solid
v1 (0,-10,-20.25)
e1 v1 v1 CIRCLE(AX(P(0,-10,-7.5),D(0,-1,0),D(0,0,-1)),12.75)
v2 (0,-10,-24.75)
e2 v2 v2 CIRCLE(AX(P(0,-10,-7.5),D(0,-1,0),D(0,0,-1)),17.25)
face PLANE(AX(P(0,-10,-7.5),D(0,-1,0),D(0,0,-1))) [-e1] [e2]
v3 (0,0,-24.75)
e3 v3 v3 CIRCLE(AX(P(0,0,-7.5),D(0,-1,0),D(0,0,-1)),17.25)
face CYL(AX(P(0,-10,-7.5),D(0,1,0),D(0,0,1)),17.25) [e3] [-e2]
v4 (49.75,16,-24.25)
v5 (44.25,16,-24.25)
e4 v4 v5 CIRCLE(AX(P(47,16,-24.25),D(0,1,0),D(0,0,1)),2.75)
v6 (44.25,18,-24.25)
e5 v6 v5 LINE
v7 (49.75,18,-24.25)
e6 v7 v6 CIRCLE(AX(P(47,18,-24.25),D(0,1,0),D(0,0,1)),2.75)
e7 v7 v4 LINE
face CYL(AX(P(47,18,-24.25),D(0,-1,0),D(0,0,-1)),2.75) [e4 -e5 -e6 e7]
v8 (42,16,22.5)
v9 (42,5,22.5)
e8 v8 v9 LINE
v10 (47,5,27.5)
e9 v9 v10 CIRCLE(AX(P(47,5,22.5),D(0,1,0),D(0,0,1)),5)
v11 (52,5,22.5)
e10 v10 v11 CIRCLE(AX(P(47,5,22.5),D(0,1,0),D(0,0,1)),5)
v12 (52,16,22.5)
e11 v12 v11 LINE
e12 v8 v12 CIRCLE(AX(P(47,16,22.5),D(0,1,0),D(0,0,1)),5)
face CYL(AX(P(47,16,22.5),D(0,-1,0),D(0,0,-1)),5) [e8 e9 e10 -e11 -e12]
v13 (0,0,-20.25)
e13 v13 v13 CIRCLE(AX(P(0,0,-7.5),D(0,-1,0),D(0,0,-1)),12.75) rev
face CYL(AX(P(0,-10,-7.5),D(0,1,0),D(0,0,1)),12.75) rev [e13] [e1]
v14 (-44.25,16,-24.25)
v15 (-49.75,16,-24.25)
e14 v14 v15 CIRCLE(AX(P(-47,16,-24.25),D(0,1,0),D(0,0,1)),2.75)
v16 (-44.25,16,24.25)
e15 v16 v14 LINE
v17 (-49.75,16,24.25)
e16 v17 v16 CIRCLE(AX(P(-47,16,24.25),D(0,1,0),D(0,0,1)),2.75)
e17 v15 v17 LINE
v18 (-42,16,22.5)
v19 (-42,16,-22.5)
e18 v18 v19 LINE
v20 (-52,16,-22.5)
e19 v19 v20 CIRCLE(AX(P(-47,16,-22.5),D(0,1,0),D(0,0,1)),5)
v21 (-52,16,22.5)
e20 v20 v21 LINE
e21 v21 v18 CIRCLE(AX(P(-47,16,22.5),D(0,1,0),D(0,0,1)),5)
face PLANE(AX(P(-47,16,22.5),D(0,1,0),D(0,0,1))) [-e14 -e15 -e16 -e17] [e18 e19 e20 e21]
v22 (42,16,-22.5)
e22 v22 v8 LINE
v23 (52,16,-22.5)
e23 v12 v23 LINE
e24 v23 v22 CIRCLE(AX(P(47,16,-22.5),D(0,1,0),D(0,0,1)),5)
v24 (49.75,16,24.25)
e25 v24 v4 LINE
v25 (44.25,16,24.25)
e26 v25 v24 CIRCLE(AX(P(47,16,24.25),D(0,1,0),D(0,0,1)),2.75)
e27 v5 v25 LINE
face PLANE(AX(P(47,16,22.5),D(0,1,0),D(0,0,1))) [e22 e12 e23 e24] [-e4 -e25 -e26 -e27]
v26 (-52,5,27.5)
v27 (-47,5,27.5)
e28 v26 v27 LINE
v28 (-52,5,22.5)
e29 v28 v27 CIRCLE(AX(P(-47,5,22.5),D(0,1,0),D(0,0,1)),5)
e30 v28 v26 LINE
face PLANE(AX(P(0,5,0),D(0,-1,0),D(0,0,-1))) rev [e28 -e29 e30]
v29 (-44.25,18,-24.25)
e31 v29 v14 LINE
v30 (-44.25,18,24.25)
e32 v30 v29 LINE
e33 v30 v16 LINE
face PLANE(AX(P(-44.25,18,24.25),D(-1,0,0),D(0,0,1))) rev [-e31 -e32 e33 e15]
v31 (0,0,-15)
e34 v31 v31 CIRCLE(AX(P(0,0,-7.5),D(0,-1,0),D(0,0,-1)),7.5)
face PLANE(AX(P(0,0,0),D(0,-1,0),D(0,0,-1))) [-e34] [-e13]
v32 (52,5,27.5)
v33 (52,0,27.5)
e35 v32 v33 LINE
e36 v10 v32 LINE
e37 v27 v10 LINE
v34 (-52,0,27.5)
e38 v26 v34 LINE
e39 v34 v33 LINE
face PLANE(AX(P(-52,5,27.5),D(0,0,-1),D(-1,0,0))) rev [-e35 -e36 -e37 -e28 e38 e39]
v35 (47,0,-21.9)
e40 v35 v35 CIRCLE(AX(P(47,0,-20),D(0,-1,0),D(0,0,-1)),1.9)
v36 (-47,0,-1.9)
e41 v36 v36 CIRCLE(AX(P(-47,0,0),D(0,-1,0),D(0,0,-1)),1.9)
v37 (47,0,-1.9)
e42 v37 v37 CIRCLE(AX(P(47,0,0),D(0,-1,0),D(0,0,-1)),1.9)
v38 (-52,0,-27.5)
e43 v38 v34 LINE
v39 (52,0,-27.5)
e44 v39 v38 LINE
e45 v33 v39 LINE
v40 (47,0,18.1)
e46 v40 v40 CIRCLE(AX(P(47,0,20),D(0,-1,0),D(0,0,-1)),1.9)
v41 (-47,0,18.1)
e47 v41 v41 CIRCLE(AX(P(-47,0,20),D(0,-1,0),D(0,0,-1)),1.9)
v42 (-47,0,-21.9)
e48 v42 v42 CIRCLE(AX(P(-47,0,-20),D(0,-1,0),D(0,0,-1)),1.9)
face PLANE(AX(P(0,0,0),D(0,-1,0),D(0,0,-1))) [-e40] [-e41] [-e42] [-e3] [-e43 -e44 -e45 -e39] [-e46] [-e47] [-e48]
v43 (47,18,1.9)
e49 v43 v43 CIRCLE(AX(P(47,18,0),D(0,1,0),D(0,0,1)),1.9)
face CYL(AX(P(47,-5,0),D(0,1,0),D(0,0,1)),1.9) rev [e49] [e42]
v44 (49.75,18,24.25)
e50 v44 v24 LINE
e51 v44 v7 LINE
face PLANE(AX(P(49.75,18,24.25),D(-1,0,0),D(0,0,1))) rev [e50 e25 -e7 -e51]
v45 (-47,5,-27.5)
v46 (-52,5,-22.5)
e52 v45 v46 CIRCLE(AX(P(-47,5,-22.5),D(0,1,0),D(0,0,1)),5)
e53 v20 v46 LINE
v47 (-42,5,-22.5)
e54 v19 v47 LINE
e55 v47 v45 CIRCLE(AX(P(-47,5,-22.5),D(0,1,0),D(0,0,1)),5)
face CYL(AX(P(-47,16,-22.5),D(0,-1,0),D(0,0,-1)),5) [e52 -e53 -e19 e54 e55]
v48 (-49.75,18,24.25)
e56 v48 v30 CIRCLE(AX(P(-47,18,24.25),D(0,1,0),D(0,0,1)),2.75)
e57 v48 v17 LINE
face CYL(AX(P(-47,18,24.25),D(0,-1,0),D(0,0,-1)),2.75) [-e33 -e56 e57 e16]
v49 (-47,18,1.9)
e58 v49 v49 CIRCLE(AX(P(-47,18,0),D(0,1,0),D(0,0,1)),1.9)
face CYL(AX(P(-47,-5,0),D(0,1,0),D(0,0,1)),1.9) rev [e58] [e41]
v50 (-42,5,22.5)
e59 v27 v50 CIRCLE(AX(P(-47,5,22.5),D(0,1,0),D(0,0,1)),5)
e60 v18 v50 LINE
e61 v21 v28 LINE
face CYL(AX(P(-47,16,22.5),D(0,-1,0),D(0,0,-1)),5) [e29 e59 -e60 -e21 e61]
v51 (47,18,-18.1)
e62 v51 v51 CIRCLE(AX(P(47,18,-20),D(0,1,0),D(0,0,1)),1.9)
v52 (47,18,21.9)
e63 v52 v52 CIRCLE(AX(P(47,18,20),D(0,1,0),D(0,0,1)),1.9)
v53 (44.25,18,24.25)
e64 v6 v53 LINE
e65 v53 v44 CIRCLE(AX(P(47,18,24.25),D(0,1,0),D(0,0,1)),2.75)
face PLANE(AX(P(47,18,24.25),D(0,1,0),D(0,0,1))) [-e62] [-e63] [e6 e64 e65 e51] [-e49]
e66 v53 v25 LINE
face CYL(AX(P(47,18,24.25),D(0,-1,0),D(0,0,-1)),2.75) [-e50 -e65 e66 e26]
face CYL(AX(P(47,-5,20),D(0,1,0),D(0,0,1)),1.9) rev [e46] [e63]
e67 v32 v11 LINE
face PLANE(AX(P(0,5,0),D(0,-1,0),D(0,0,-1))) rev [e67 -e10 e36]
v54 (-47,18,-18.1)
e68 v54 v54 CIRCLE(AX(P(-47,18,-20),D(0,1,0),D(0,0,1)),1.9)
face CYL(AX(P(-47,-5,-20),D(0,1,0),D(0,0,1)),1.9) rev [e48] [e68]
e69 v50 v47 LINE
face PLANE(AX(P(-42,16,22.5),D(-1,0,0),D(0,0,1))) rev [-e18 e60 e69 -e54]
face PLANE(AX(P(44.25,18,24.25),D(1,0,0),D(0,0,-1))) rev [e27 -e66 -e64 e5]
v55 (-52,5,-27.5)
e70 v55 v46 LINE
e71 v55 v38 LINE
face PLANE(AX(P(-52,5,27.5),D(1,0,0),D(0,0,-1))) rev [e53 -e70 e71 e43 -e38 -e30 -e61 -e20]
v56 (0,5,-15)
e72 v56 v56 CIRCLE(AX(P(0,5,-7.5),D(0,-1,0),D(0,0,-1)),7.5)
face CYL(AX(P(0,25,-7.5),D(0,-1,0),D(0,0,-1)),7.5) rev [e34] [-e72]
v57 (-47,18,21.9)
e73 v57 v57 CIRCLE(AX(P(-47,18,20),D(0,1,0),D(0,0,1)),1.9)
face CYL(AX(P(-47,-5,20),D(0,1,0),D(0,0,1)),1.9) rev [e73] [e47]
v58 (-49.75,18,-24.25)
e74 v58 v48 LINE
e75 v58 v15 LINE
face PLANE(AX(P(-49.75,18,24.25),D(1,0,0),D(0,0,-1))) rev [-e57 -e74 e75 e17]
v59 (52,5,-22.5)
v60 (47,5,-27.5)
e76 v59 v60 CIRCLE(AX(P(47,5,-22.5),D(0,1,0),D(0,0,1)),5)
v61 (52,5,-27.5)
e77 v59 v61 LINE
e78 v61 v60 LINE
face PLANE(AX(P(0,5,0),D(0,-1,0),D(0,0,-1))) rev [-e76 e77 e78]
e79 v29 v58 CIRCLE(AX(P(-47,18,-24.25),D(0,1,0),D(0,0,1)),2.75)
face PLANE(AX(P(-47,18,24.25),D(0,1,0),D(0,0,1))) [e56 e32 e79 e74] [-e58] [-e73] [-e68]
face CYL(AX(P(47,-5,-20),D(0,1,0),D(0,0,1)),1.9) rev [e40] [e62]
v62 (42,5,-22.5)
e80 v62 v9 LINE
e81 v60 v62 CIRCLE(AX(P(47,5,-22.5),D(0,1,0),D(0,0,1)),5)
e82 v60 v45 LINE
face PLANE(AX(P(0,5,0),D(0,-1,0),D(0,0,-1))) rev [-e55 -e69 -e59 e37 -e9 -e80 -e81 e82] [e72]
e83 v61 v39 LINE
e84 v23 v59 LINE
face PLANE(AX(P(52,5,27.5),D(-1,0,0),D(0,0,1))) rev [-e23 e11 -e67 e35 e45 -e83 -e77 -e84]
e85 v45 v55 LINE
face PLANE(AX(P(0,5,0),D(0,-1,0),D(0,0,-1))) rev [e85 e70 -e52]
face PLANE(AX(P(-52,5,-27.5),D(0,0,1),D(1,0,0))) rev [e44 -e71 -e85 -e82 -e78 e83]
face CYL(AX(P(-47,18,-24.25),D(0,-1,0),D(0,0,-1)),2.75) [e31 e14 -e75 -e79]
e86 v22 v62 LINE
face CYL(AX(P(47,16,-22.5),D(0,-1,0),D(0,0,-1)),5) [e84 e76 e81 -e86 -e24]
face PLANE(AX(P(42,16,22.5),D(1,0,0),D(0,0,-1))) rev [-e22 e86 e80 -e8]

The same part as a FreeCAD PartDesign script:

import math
import FreeCAD as App
import Part
import Sketcher


def add_polygon(sketch, points):
    """Adds a closed chain of lines whose ends are joined by coincident constraints."""
    first, n = sketch.GeometryCount, len(points)
    for a, b in zip(points, points[1:] + points[:1]):
        sketch.addGeometry(Part.LineSegment(App.Vector(*a, 0), App.Vector(*b, 0)), False)
    for i in range(n):
        sketch.addConstraint(Sketcher.Constraint("Coincident", first + i, 2, first + (i + 1) % n, 1))

doc = App.newDocument("Part")
body = doc.addObject("PartDesign::Body", "Body")

# Sketch on XZ plane
sketch1 = body.newObject("Sketcher::SketchObject", "Sketch")
sketch1.AttachmentSupport = (doc.getObject("XZ_Plane"), [""])
sketch1.MapMode = "FlatFace"
add_polygon(sketch1, [(-52, -28), (-52, 28), (52, 28), (52, -28)])  # lines 0-3
sketch1.addConstraint(Sketcher.Constraint("Vertical", 0))
sketch1.addConstraint(Sketcher.Constraint("Horizontal", 1))
sketch1.addConstraint(Sketcher.Constraint("Vertical", 2))
sketch1.addConstraint(Sketcher.Constraint("Horizontal", 3))
sketch1.addConstraint(Sketcher.Constraint("Symmetric", 0, 2, 2, 2, -1, 1))
sketch1.addConstraint(Sketcher.Constraint("DistanceX", 1, 1, 1, 2, 104.0))
sketch1.addConstraint(Sketcher.Constraint("DistanceY", 0, 1, 0, 2, 55.0))
pad1 = body.newObject("PartDesign::Pad", "Pad")
pad1.Profile = sketch1
pad1.Length = 5
pad1.Reversed = True

# Sketch on XZ plane
sketch2 = body.newObject("Sketcher::SketchObject", "Sketch001")
sketch2.AttachmentSupport = (doc.getObject("XZ_Plane"), [""])
sketch2.MapMode = "FlatFace"
sketch2.AttachmentOffset = App.Placement(App.Vector(0, 0, -5), App.Rotation())
sketch2.addGeometry(Part.LineSegment(App.Vector(-52, -22, 0), App.Vector(-52, 22, 0)), False)
sketch2.addGeometry(Part.ArcOfCircle(Part.Circle(App.Vector(-47, 22, 0), App.Vector(0, 0, 1), 5), math.radians(0), math.radians(180)), False)
sketch2.addGeometry(Part.LineSegment(App.Vector(-42, 22, 0), App.Vector(-42, -22, 0)), False)
sketch2.addGeometry(Part.ArcOfCircle(Part.Circle(App.Vector(-47, -22, 0), App.Vector(0, 0, 1), 5), math.radians(180), math.radians(360)), False)
sketch2.addGeometry(Part.LineSegment(App.Vector(42, -22, 0), App.Vector(42, 22, 0)), False)
sketch2.addGeometry(Part.ArcOfCircle(Part.Circle(App.Vector(47, 22, 0), App.Vector(0, 0, 1), 5), math.radians(0), math.radians(180)), False)
sketch2.addGeometry(Part.LineSegment(App.Vector(52, 22, 0), App.Vector(52, -22, 0)), False)
sketch2.addGeometry(Part.ArcOfCircle(Part.Circle(App.Vector(47, -22, 0), App.Vector(0, 0, 1), 5), math.radians(180), math.radians(360)), False)
sketch2.addConstraint(Sketcher.Constraint("Tangent", 0, 2, 1, 2))
sketch2.addConstraint(Sketcher.Constraint("Tangent", 1, 1, 2, 1))
sketch2.addConstraint(Sketcher.Constraint("Tangent", 2, 2, 3, 2))
sketch2.addConstraint(Sketcher.Constraint("Tangent", 3, 1, 0, 1))
sketch2.addConstraint(Sketcher.Constraint("Tangent", 4, 2, 5, 2))
sketch2.addConstraint(Sketcher.Constraint("Tangent", 5, 1, 6, 1))
sketch2.addConstraint(Sketcher.Constraint("Tangent", 6, 2, 7, 2))
sketch2.addConstraint(Sketcher.Constraint("Tangent", 7, 1, 4, 1))
sketch2.addConstraint(Sketcher.Constraint("Vertical", 0))
sketch2.addConstraint(Sketcher.Constraint("Vertical", 2))
sketch2.addConstraint(Sketcher.Constraint("Vertical", 4))
sketch2.addConstraint(Sketcher.Constraint("Vertical", 6))
sketch2.addConstraint(Sketcher.Constraint("Equal", 3, 5))
sketch2.addConstraint(Sketcher.Constraint("Symmetric", 3, 3, 5, 3, -1, 1))
sketch2.addConstraint(Sketcher.Constraint("Horizontal", 1, 3, 5, 3))
sketch2.addConstraint(Sketcher.Constraint("Horizontal", 3, 3, 7, 3))
sketch2.addConstraint(Sketcher.Constraint("Radius", 1, 5.0))
sketch2.addConstraint(Sketcher.Constraint("DistanceY", 0, 1, 0, 2, 45.0))
sketch2.addConstraint(Sketcher.Constraint("DistanceX", 1, 3, -1, 1, 47.0))
pad2 = body.newObject("PartDesign::Pad", "Pad001")
pad2.Profile = sketch2
pad2.Length = 11
pad2.Reversed = True

# Sketch on XZ plane
sketch3 = body.newObject("Sketcher::SketchObject", "Sketch002")
sketch3.AttachmentSupport = (doc.getObject("XZ_Plane"), [""])
sketch3.MapMode = "FlatFace"
sketch3.AttachmentOffset = App.Placement(App.Vector(0, 0, -16), App.Rotation())
sketch3.addGeometry(Part.LineSegment(App.Vector(-49.8, -24.2, 0), App.Vector(-49.8, 24.2, 0)), False)
sketch3.addGeometry(Part.ArcOfCircle(Part.Circle(App.Vector(-47, 24.2, 0), App.Vector(0, 0, 1), 2.8), math.radians(0), math.radians(180)), False)
sketch3.addGeometry(Part.LineSegment(App.Vector(-44.2, 24.2, 0), App.Vector(-44.2, -24.2, 0)), False)
sketch3.addGeometry(Part.ArcOfCircle(Part.Circle(App.Vector(-47, -24.2, 0), App.Vector(0, 0, 1), 2.8), math.radians(180), math.radians(360)), False)
sketch3.addGeometry(Part.LineSegment(App.Vector(44.2, -24.2, 0), App.Vector(44.2, 24.2, 0)), False)
sketch3.addGeometry(Part.ArcOfCircle(Part.Circle(App.Vector(47, 24.2, 0), App.Vector(0, 0, 1), 2.8), math.radians(0), math.radians(180)), False)
sketch3.addGeometry(Part.LineSegment(App.Vector(49.8, 24.2, 0), App.Vector(49.8, -24.2, 0)), False)
sketch3.addGeometry(Part.ArcOfCircle(Part.Circle(App.Vector(47, -24.2, 0), App.Vector(0, 0, 1), 2.8), math.radians(180), math.radians(360)), False)
sketch3.addConstraint(Sketcher.Constraint("Tangent", 0, 2, 1, 2))
sketch3.addConstraint(Sketcher.Constraint("Tangent", 1, 1, 2, 1))
sketch3.addConstraint(Sketcher.Constraint("Tangent", 2, 2, 3, 2))
sketch3.addConstraint(Sketcher.Constraint("Tangent", 3, 1, 0, 1))
sketch3.addConstraint(Sketcher.Constraint("Tangent", 4, 2, 5, 2))
sketch3.addConstraint(Sketcher.Constraint("Tangent", 5, 1, 6, 1))
sketch3.addConstraint(Sketcher.Constraint("Tangent", 6, 2, 7, 2))
sketch3.addConstraint(Sketcher.Constraint("Tangent", 7, 1, 4, 1))
sketch3.addConstraint(Sketcher.Constraint("Vertical", 0))
sketch3.addConstraint(Sketcher.Constraint("Vertical", 2))
sketch3.addConstraint(Sketcher.Constraint("Vertical", 4))
sketch3.addConstraint(Sketcher.Constraint("Vertical", 6))
sketch3.addConstraint(Sketcher.Constraint("Equal", 3, 5))
sketch3.addConstraint(Sketcher.Constraint("Symmetric", 3, 3, 5, 3, -1, 1))
sketch3.addConstraint(Sketcher.Constraint("Horizontal", 1, 3, 5, 3))
sketch3.addConstraint(Sketcher.Constraint("Horizontal", 3, 3, 7, 3))
sketch3.addConstraint(Sketcher.Constraint("Radius", 1, 2.75))
sketch3.addConstraint(Sketcher.Constraint("DistanceY", 0, 1, 0, 2, 48.5))
sketch3.addConstraint(Sketcher.Constraint("DistanceX", 1, 3, -1, 1, 47.0))
pad3 = body.newObject("PartDesign::Pad", "Pad002")
pad3.Profile = sketch3
pad3.Length = 2
pad3.Reversed = True

# Sketch on XZ plane
sketch4 = body.newObject("Sketcher::SketchObject", "Sketch003")
sketch4.AttachmentSupport = (doc.getObject("XZ_Plane"), [""])
sketch4.MapMode = "FlatFace"
sketch4.AttachmentOffset = App.Placement(App.Vector(0, 0, -18), App.Rotation())
sketch4.addGeometry(Part.Circle(App.Vector(-47, 0, 0), App.Vector(0, 0, 1), 1.9), False)
sketch4.addGeometry(Part.Circle(App.Vector(-47, -20, 0), App.Vector(0, 0, 1), 1.9), False)
sketch4.addGeometry(Part.Circle(App.Vector(-47, 20, 0), App.Vector(0, 0, 1), 1.9), False)
sketch4.addGeometry(Part.Circle(App.Vector(47, 0, 0), App.Vector(0, 0, 1), 1.9), False)
sketch4.addGeometry(Part.Circle(App.Vector(47, -20, 0), App.Vector(0, 0, 1), 1.9), False)
sketch4.addGeometry(Part.Circle(App.Vector(47, 20, 0), App.Vector(0, 0, 1), 1.9), False)
sketch4.addConstraint(Sketcher.Constraint("Equal", 0, 1))
sketch4.addConstraint(Sketcher.Constraint("Equal", 1, 2))
sketch4.addConstraint(Sketcher.Constraint("Equal", 2, 3))
sketch4.addConstraint(Sketcher.Constraint("Equal", 3, 4))
sketch4.addConstraint(Sketcher.Constraint("Equal", 4, 5))
sketch4.addConstraint(Sketcher.Constraint("Symmetric", 0, 3, 3, 3, -1, 1))
sketch4.addConstraint(Sketcher.Constraint("Symmetric", 2, 3, 4, 3, -1, 1))
sketch4.addConstraint(Sketcher.Constraint("Symmetric", 1, 3, 5, 3, -1, 1))
sketch4.addConstraint(Sketcher.Constraint("Symmetric", 1, 3, 4, 3, -2))
sketch4.addConstraint(Sketcher.Constraint("PointOnObject", 0, 3, -1))
sketch4.addConstraint(Sketcher.Constraint("Vertical", 0, 3, 1, 3))
sketch4.addConstraint(Sketcher.Constraint("Diameter", 0, 3.8))
sketch4.addConstraint(Sketcher.Constraint("DistanceX", 0, 3, -1, 1, 47.0))
sketch4.addConstraint(Sketcher.Constraint("DistanceY", 1, 3, -1, 1, 20.0))
pocket1 = body.newObject("PartDesign::Pocket", "Pocket")
pocket1.Profile = sketch4
pocket1.Length = 23
pocket1.Reversed = True

# Sketch on XZ plane
sketch5 = body.newObject("Sketcher::SketchObject", "Sketch004")
sketch5.AttachmentSupport = (doc.getObject("XZ_Plane"), [""])
sketch5.MapMode = "FlatFace"
sketch5.addGeometry(Part.Circle(App.Vector(0, -8, 0), App.Vector(0, 0, 1), 17), False)
sketch5.addGeometry(Part.Circle(App.Vector(0, -8, 0), App.Vector(0, 0, 1), 13), False)
sketch5.addConstraint(Sketcher.Constraint("Coincident", 1, 3, 0, 3))
sketch5.addConstraint(Sketcher.Constraint("PointOnObject", 0, 3, -2))
sketch5.addConstraint(Sketcher.Constraint("Diameter", 0, 34.5))
sketch5.addConstraint(Sketcher.Constraint("Diameter", 1, 25.5))
sketch5.addConstraint(Sketcher.Constraint("DistanceY", 0, 3, -1, 1, 7.5))
pad4 = body.newObject("PartDesign::Pad", "Pad003")
pad4.Profile = sketch5
pad4.Length = 10

# Sketch on XZ plane
sketch6 = body.newObject("Sketcher::SketchObject", "Sketch005")
sketch6.AttachmentSupport = (doc.getObject("XZ_Plane"), [""])
sketch6.MapMode = "FlatFace"
sketch6.AttachmentOffset = App.Placement(App.Vector(0, 0, 10), App.Rotation())
sketch6.addGeometry(Part.Circle(App.Vector(0, -8, 0), App.Vector(0, 0, 1), 8), False)
sketch6.addConstraint(Sketcher.Constraint("PointOnObject", 0, 3, -2))
sketch6.addConstraint(Sketcher.Constraint("Diameter", 0, 15.0))
sketch6.addConstraint(Sketcher.Constraint("DistanceY", 0, 3, -1, 1, 7.5))
pocket2 = body.newObject("PartDesign::Pocket", "Pocket001")
pocket2.Profile = sketch6
pocket2.Length = 35

doc.recompute()
